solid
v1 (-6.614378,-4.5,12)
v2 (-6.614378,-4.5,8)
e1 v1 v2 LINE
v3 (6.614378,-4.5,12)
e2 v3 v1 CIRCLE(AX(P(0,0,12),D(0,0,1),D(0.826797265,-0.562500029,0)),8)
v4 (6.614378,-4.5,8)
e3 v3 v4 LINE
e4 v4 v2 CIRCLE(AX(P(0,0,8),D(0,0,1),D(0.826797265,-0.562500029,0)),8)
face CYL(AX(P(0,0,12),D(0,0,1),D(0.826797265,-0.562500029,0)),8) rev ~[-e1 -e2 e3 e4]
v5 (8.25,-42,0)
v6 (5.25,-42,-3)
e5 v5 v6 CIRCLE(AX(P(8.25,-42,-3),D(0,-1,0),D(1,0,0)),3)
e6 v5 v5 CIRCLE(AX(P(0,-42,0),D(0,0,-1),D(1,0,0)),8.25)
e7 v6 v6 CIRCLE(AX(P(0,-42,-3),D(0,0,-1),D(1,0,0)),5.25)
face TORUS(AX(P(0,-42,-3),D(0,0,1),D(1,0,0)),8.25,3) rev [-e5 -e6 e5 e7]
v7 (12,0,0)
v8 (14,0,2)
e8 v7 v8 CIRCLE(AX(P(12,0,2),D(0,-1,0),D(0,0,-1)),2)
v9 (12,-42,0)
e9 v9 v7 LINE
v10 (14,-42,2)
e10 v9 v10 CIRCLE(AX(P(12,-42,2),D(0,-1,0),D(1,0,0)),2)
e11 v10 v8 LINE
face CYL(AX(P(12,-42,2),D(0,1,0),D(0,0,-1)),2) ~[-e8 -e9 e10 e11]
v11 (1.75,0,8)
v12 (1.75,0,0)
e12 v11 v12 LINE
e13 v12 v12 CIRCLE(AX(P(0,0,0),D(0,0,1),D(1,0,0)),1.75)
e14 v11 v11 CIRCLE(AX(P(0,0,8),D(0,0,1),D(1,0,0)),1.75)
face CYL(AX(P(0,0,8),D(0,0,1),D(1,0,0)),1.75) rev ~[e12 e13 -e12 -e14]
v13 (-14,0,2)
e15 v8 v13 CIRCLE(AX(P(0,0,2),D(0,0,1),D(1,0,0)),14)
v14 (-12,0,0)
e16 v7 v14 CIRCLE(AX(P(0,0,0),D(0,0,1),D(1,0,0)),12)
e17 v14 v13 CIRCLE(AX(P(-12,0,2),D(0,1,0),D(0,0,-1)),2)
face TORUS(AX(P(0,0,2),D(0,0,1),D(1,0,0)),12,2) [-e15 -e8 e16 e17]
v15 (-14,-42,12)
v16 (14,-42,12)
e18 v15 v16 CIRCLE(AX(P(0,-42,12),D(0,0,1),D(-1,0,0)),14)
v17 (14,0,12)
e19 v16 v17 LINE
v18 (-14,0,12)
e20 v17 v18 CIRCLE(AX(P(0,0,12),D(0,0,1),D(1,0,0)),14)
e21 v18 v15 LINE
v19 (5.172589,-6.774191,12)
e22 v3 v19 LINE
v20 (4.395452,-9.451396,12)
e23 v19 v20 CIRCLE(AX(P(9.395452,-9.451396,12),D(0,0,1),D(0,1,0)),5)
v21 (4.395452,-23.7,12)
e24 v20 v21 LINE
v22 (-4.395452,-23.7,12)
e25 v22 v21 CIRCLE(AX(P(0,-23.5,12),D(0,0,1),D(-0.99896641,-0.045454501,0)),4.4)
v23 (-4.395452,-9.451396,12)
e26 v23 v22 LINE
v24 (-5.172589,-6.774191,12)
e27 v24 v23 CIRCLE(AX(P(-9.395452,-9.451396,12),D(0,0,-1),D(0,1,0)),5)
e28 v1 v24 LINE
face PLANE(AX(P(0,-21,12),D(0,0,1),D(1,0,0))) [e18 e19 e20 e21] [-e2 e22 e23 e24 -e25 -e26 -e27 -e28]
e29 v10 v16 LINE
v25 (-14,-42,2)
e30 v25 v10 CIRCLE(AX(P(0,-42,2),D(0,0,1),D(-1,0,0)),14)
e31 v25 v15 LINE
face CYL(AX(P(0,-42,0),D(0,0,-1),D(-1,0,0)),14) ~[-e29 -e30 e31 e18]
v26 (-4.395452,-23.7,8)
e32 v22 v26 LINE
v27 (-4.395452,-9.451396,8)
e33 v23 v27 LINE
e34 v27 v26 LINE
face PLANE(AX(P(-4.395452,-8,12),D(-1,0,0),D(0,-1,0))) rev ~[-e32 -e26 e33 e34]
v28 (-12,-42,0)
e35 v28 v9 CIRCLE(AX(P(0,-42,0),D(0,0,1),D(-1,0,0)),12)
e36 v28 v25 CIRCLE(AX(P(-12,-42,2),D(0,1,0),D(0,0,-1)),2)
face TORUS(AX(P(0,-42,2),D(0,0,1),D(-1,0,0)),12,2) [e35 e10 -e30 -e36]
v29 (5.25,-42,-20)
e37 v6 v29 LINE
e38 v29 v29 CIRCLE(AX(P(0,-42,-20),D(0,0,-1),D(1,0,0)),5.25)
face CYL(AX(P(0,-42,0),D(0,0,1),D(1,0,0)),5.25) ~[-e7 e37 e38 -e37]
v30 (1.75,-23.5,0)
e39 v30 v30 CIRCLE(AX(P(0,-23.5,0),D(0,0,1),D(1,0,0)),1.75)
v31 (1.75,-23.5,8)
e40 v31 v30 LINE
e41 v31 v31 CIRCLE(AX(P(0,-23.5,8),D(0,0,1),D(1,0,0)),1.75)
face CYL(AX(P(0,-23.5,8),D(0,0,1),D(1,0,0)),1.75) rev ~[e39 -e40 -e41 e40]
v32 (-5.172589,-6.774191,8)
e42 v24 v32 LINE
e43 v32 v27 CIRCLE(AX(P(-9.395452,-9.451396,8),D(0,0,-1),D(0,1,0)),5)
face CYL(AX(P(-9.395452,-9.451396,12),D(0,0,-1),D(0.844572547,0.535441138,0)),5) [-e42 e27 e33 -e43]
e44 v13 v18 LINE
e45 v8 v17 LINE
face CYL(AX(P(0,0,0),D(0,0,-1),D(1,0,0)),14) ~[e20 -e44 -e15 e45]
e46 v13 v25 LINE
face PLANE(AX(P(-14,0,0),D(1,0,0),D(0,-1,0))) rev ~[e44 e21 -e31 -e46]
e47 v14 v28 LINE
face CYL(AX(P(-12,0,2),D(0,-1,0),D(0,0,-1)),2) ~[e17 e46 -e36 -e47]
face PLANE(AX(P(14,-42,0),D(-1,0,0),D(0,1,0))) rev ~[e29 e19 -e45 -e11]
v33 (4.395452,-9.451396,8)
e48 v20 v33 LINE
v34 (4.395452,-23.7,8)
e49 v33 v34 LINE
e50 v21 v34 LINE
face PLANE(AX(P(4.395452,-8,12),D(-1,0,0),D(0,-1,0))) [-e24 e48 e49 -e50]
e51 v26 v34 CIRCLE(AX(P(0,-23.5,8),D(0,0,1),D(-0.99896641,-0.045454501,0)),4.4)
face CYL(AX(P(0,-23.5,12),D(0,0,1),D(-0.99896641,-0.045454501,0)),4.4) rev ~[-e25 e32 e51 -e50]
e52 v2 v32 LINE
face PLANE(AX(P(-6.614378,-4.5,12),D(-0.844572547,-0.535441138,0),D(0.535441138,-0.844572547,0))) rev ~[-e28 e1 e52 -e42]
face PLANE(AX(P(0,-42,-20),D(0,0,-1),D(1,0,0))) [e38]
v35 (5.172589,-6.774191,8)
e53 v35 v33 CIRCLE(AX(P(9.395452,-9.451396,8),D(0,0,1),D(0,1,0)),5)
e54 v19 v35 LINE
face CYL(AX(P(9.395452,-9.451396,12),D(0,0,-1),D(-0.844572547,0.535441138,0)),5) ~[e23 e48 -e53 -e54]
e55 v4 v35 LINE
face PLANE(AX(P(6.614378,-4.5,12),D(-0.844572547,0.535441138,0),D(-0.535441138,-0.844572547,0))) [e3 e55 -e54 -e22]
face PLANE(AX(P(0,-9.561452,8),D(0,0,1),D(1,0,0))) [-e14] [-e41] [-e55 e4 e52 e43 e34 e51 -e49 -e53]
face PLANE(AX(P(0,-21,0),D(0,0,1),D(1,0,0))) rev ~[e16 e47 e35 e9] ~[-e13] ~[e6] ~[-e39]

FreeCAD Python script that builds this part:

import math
import FreeCAD as App
import Part
import Sketcher

V = App.Vector


def edges_at(feature, points):
    """Names of the edges that pass closest to the given points."""
    edges = feature.Shape.Edges
    near = lambda p: min(range(len(edges)), key=lambda i: edges[i].distToShape(Part.Vertex(*p))[0])
    return sorted({f"Edge{near(p) + 1}" for p in points})

doc = App.newDocument("Part")
params = doc.addObject("Spreadsheet::Sheet", "Params")
for row, (alias, value) in enumerate([
    ("sketch1_radius", "14 mm"),
    ("sketch1_height", "42 mm"),
    ("pad1_length", "12 mm"),
    ("sketch2_radius", "8 mm"),
    ("sketch2_radius2", "4.4 mm"),
    ("sketch2_height", "15.7 mm"),
    ("pocket1_length", "4 mm"),
    ("sketch3_diameter", "10.5 mm"),
    ("pad2_length", "20 mm"),
    ("sketch4_diameter", "3.5 mm"),
    ("fillet_radius", "3 mm"),
    ("fillet2_radius", "2 mm"),
    ("fillet3_radius", "5 mm"),
], start=1):
    params.set(f"A{row}", alias)
    params.set(f"B{row}", "=" + value)
    params.setAlias(f"B{row}", alias)

body = doc.addObject("PartDesign::Body", "Body")

sketch1 = doc.addObject("Sketcher::SketchObject", "Sketch")
body.addObject(sketch1)
sketch1.AttachmentSupport = (doc.XY_Plane, [""])
sketch1.MapMode = "FlatFace"
sketch1.addGeometry([
    Part.ArcOfCircle(Part.Circle(V(0, 0, 0), V(0, 0, 1), 14), math.radians(0), math.radians(180)),
    Part.LineSegment(V(-14, 0, 0), V(-14, -42, 0)),
    Part.ArcOfCircle(Part.Circle(V(0, -42, 0), V(0, 0, 1), 14), math.radians(180), math.radians(360)),
    Part.LineSegment(V(14, -42, 0), V(14, 0, 0)),
], False)
sketch1.addConstraint([
    Sketcher.Constraint("Tangent", 0, 2, 1, 1),
    Sketcher.Constraint("Tangent", 1, 2, 2, 1),
    Sketcher.Constraint("Tangent", 2, 2, 3, 1),
    Sketcher.Constraint("Tangent", 3, 2, 0, 1),
    Sketcher.Constraint("Vertical", 1),
    Sketcher.Constraint("Vertical", 3),
    Sketcher.Constraint("Coincident", 0, 3, -1, 1),
    Sketcher.Constraint("Radius", 0, 14.0),
    Sketcher.Constraint("DistanceY", 1, 2, 1, 1, 42.0),
])
sketch1.setExpression("Constraints[7]", "Params.sketch1_radius")
sketch1.setExpression("Constraints[8]", "Params.sketch1_height")
pad1 = doc.addObject("PartDesign::Pad", "Pad")
body.addObject(pad1)
pad1.Profile = sketch1
pad1.setExpression("Length", "Params.pad1_length")

sketch2 = doc.addObject("Sketcher::SketchObject", "Sketch001")
body.addObject(sketch2)
sketch2.AttachmentSupport = (doc.XY_Plane, [""])
sketch2.MapMode = "FlatFace"
sketch2.AttachmentOffset = App.Placement(V(0, 0, 12), App.Rotation())
sketch2.addGeometry([
    Part.ArcOfCircle(Part.Circle(V(0, 0, 0), V(0, 0, 1), 8), math.radians(-34), math.radians(214)),
    Part.LineSegment(V(-6.6, -4.5, 0), V(-4.4, -8, 0)),
    Part.LineSegment(V(-4.4, -8, 0), V(-4.4, -23.7, 0)),
    Part.ArcOfCircle(Part.Circle(V(0, -23.5, 0), V(0, 0, 1), 4.4), math.radians(-177), math.radians(-3)),
    Part.LineSegment(V(4.4, -23.7, 0), V(4.4, -8, 0)),
    Part.LineSegment(V(4.4, -8, 0), V(6.6, -4.5, 0)),
], False)
sketch2.addConstraint([
    Sketcher.Constraint("Coincident", 0, 2, 1, 1),
    Sketcher.Constraint("Coincident", 1, 2, 2, 1),
    Sketcher.Constraint("Coincident", 2, 2, 3, 1),
    Sketcher.Constraint("Coincident", 3, 2, 4, 1),
    Sketcher.Constraint("Coincident", 4, 2, 5, 1),
    Sketcher.Constraint("Coincident", 5, 2, 0, 1),
    Sketcher.Constraint("Vertical", 2),
    Sketcher.Constraint("Vertical", 4),
    Sketcher.Constraint("Coincident", 0, 3, -1, 1),
    Sketcher.Constraint("Symmetric", 2, 2, 3, 2, -2),
    Sketcher.Constraint("Horizontal", 1, 2, 4, 2),
    Sketcher.Constraint("Horizontal", 0, 2, 5, 2),
    Sketcher.Constraint("Radius", 0, 8.0),
    Sketcher.Constraint("Radius", 3, 4.4),
    Sketcher.Constraint("DistanceY", 2, 2, 2, 1, 15.7),
    Sketcher.Constraint("DistanceY", 1, 2, -1, 1, 8.0),
    Sketcher.Constraint("DistanceY", 3, 3, 0, 2, 19.0),
    Sketcher.Constraint("DistanceY", 3, 3, -1, 1, 23.5),
])
sketch2.setExpression("Constraints[12]", "Params.sketch2_radius")
sketch2.setExpression("Constraints[13]", "Params.sketch2_radius2")
sketch2.setExpression("Constraints[14]", "Params.sketch2_height")
pocket1 = doc.addObject("PartDesign::Pocket", "Pocket")
body.addObject(pocket1)
pocket1.Profile = sketch2
pocket1.setExpression("Length", "Params.pocket1_length")

sketch3 = doc.addObject("Sketcher::SketchObject", "Sketch002")
body.addObject(sketch3)
sketch3.AttachmentSupport = (doc.XY_Plane, [""])
sketch3.MapMode = "FlatFace"
sketch3.addGeometry(Part.Circle(V(0, -42, 0), V(0, 0, 1), 5), False)
sketch3.addConstraint([
    Sketcher.Constraint("PointOnObject", 0, 3, -2),
    Sketcher.Constraint("Diameter", 0, 10.5),
    Sketcher.Constraint("DistanceY", 0, 3, -1, 1, 42.0),
])
sketch3.setExpression("Constraints[1]", "Params.sketch3_diameter")
pad2 = doc.addObject("PartDesign::Pad", "Pad001")
body.addObject(pad2)
pad2.Profile = sketch3
pad2.setExpression("Length", "Params.pad2_length")
pad2.Reversed = True

sketch4 = doc.addObject("Sketcher::SketchObject", "Sketch003")
body.addObject(sketch4)
sketch4.AttachmentSupport = (doc.XY_Plane, [""])
sketch4.MapMode = "FlatFace"
sketch4.AttachmentOffset = App.Placement(V(0, 0, 8), App.Rotation())
sketch4.addGeometry([
    Part.Circle(V(0, 0, 0), V(0, 0, 1), 1.8),
    Part.Circle(V(0, -23.5, 0), V(0, 0, 1), 1.8),
], False)
sketch4.addConstraint([
    Sketcher.Constraint("Coincident", 0, 3, -1, 1),
    Sketcher.Constraint("Equal", 0, 1),
    Sketcher.Constraint("PointOnObject", 1, 3, -2),
    Sketcher.Constraint("Diameter", 0, 3.5),
    Sketcher.Constraint("DistanceY", 1, 3, -1, 1, 23.5),
])
sketch4.setExpression("Constraints[3]", "Params.sketch4_diameter")
pocket2 = doc.addObject("PartDesign::Pocket", "Pocket001")
body.addObject(pocket2)
pocket2.Profile = sketch4
pocket2.Type = "ThroughAll"
doc.recompute()

fillet = doc.addObject("PartDesign::Fillet", "Fillet")
body.addObject(fillet)
fillet.Base = (pocket2, edges_at(pocket2, [(-5.25, -42, 0)]))
fillet.setExpression("Radius", "Params.fillet_radius")
doc.recompute()

fillet2 = doc.addObject("PartDesign::Fillet", "Fillet001")
body.addObject(fillet2)
fillet2.Base = (fillet, edges_at(fillet, [
    (-14, -21, 0),
    (0, 14, 0),
    (14, -21, 0),
    (0, -56, 0),
]))
fillet2.setExpression("Radius", "Params.fillet2_radius")
doc.recompute()

fillet3 = doc.addObject("PartDesign::Fillet", "Fillet002")
body.addObject(fillet3)
fillet3.Base = (fillet2, edges_at(fillet2, [(-4.395, -8, 10), (4.395, -8, 10)]))
fillet3.setExpression("Radius", "Params.fillet3_radius")

doc.recompute()
